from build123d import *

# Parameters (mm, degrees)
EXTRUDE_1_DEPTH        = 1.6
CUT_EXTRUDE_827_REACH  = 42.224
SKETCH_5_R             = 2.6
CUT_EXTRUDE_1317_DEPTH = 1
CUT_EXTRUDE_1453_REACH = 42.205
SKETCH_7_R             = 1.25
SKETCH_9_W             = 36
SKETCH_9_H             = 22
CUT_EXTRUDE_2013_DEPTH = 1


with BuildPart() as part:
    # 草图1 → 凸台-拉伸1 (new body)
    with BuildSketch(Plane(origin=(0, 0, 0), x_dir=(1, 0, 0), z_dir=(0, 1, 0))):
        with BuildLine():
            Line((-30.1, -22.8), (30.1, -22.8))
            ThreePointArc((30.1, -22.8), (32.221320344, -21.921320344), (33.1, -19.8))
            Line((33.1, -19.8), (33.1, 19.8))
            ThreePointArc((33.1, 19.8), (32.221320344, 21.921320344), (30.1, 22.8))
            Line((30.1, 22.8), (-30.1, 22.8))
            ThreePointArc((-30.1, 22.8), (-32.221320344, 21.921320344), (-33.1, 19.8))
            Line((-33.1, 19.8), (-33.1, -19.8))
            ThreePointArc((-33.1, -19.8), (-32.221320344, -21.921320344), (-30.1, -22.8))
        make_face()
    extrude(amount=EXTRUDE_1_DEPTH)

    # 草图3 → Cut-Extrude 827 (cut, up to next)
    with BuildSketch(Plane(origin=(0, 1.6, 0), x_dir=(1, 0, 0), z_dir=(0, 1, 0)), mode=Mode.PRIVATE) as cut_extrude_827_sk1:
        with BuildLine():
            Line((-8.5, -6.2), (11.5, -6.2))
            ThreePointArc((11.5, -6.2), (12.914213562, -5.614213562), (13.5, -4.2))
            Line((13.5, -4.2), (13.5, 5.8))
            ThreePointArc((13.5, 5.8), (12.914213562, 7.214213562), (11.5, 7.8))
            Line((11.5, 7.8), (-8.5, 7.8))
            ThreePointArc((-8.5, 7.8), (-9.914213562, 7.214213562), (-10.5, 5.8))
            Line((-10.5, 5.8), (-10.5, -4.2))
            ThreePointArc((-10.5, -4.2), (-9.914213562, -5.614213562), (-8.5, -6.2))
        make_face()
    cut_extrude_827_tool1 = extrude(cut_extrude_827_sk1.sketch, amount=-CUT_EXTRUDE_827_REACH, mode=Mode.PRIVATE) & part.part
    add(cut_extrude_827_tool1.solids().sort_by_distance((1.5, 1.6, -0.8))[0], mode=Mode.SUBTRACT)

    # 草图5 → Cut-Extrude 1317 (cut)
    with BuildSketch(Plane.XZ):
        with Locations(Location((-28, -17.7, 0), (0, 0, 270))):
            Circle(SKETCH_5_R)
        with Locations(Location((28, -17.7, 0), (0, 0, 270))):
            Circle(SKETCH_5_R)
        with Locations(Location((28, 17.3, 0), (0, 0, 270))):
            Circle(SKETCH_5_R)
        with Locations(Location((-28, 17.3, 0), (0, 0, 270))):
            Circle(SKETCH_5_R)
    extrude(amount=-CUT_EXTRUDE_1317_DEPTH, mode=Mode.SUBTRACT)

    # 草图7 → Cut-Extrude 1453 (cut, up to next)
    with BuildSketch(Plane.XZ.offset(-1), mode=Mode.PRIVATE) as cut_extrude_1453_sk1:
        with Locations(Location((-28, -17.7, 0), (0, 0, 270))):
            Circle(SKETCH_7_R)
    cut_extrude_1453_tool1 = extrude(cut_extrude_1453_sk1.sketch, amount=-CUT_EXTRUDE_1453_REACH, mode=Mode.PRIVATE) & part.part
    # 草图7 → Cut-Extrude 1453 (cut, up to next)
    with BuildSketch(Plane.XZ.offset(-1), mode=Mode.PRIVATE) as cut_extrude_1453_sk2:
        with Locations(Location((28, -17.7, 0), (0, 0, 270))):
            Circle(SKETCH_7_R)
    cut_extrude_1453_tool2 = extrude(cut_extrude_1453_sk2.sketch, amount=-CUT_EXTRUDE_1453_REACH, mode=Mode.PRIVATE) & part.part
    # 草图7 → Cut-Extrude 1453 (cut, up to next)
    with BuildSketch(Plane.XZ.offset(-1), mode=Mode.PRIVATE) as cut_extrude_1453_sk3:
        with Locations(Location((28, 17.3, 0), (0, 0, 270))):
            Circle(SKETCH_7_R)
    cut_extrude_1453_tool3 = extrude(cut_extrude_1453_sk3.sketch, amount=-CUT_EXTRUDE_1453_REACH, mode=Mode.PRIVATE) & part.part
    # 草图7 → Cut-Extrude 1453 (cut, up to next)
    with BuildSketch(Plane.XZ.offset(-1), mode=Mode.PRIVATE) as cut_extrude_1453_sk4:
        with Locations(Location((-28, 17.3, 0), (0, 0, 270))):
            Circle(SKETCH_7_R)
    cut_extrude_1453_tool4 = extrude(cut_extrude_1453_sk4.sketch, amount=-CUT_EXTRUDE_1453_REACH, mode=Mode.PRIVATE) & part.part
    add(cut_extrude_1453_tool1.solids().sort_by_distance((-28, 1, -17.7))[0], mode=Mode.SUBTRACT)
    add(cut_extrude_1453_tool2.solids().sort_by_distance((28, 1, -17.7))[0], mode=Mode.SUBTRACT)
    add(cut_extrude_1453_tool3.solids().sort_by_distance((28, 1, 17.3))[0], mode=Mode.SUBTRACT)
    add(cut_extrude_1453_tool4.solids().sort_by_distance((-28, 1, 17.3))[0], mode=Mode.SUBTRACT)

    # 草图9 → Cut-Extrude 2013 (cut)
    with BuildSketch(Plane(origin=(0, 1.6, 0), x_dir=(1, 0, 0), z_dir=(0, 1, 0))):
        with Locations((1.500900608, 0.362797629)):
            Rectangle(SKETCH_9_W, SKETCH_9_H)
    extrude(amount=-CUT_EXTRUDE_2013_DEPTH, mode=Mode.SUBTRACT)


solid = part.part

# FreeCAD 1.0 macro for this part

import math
import FreeCAD as App
import Part
import Sketcher
from FreeCAD import Vector
Q = App.Units.Quantity


def add_polygon(sketch, points):
    """Adds a closed chain of lines whose ends are joined by coincident constraints."""
    first, n = sketch.GeometryCount, len(points)
    for a, b in zip(points, points[1:] + points[:1]):
        sketch.addGeometry(Part.LineSegment(App.Vector(*a, 0), App.Vector(*b, 0)), False)
    for i in range(n):
        sketch.addConstraint(Sketcher.Constraint("Coincident", first + i, 2, first + (i + 1) % n, 1))

doc = App.newDocument("Part")
body = doc.addObject("PartDesign::Body", "Body")

sketch1 = doc.addObject("Sketcher::SketchObject", "Sketch")
body.addObject(sketch1)
sketch1.AttachmentSupport = (doc.XZ_Plane, [""])
sketch1.MapMode = "FlatFace"
sketch1.addGeometry([
    Part.LineSegment(Vector(-30.1, 22.8, 0), Vector(30.1, 22.8, 0)),
    Part.ArcOfCircle(Part.Circle(Vector(30.1, 19.8, 0), Vector(0, 0, 1), 3), math.radians(0), math.radians(90)),
    Part.LineSegment(Vector(33.1, 19.8, 0), Vector(33.1, -19.8, 0)),
    Part.ArcOfCircle(Part.Circle(Vector(30.1, -19.8, 0), Vector(0, 0, 1), 3), math.radians(-90), math.radians(0)),
    Part.LineSegment(Vector(30.1, -22.8, 0), Vector(-30.1, -22.8, 0)),
    Part.ArcOfCircle(Part.Circle(Vector(-30.1, -19.8, 0), Vector(0, 0, 1), 3), math.radians(180), math.radians(270)),
    Part.LineSegment(Vector(-33.1, -19.8, 0), Vector(-33.1, 19.8, 0)),
    Part.ArcOfCircle(Part.Circle(Vector(-30.1, 19.8, 0), Vector(0, 0, 1), 3), math.radians(90), math.radians(180)),
], False)
sketch1.addConstraint([
    Sketcher.Constraint("Tangent", 0, 2, 1, 2),
    Sketcher.Constraint("Tangent", 1, 1, 2, 1),
    Sketcher.Constraint("Tangent", 2, 2, 3, 2),
    Sketcher.Constraint("Tangent", 3, 1, 4, 1),
    Sketcher.Constraint("Tangent", 4, 2, 5, 2),
    Sketcher.Constraint("Tangent", 5, 1, 6, 1),
    Sketcher.Constraint("Tangent", 6, 2, 7, 2),
    Sketcher.Constraint("Tangent", 7, 1, 0, 1),
    Sketcher.Constraint("Horizontal", 0),
    Sketcher.Constraint("Vertical", 2),
    Sketcher.Constraint("Horizontal", 4),
    Sketcher.Constraint("Vertical", 6),
    Sketcher.Constraint("Equal", 1, 3),
    Sketcher.Constraint("Equal", 3, 5),
    Sketcher.Constraint("Equal", 5, 7),
    Sketcher.Constraint("Symmetric", 1, 3, 5, 3, -1, 1),
    Sketcher.Constraint("Radius", 1, Q("3 mm")),
    Sketcher.Constraint("DistanceX", 0, 1, 0, 2, Q("60.2 mm")),
    Sketcher.Constraint("DistanceY", 2, 2, 2, 1, Q("39.6 mm")),
])
pad1 = doc.addObject("PartDesign::Pad", "Pad")
body.addObject(pad1)
pad1.Profile = sketch1
pad1.Length = 1.6
pad1.Reversed = True

sketch2 = doc.addObject("Sketcher::SketchObject", "Sketch001")
body.addObject(sketch2)
sketch2.AttachmentSupport = (doc.XZ_Plane, [""])
sketch2.MapMode = "FlatFace"
sketch2.AttachmentOffset = App.Placement(Vector(0, 0, -1.6), App.Rotation())
sketch2.addGeometry([
    Part.LineSegment(Vector(-8.5, 6.2, 0), Vector(11.5, 6.2, 0)),
    Part.ArcOfCircle(Part.Circle(Vector(11.5, 4.2, 0), Vector(0, 0, 1), 2), math.radians(0), math.radians(90)),
    Part.LineSegment(Vector(13.5, 4.2, 0), Vector(13.5, -5.8, 0)),
    Part.ArcOfCircle(Part.Circle(Vector(11.5, -5.8, 0), Vector(0, 0, 1), 2), math.radians(-90), math.radians(0)),
    Part.LineSegment(Vector(11.5, -7.8, 0), Vector(-8.5, -7.8, 0)),
    Part.ArcOfCircle(Part.Circle(Vector(-8.5, -5.8, 0), Vector(0, 0, 1), 2), math.radians(-180), math.radians(-90)),
    Part.LineSegment(Vector(-10.5, -5.8, 0), Vector(-10.5, 4.2, 0)),
    Part.ArcOfCircle(Part.Circle(Vector(-8.5, 4.2, 0), Vector(0, 0, 1), 2), math.radians(90), math.radians(180)),
], False)
sketch2.addConstraint([
    Sketcher.Constraint("Tangent", 0, 2, 1, 2),
    Sketcher.Constraint("Tangent", 1, 1, 2, 1),
    Sketcher.Constraint("Tangent", 2, 2, 3, 2),
    Sketcher.Constraint("Tangent", 3, 1, 4, 1),
    Sketcher.Constraint("Tangent", 4, 2, 5, 2),
    Sketcher.Constraint("Tangent", 5, 1, 6, 1),
    Sketcher.Constraint("Tangent", 6, 2, 7, 2),
    Sketcher.Constraint("Tangent", 7, 1, 0, 1),
    Sketcher.Constraint("Horizontal", 0),
    Sketcher.Constraint("Vertical", 2),
    Sketcher.Constraint("Horizontal", 4),
    Sketcher.Constraint("Vertical", 6),
    Sketcher.Constraint("Equal", 1, 3),
    Sketcher.Constraint("Equal", 3, 5),
    Sketcher.Constraint("Equal", 5, 7),
    Sketcher.Constraint("Radius", 1, Q("2 mm")),
    Sketcher.Constraint("DistanceX", 0, 1, 0, 2, Q("20 mm")),
    Sketcher.Constraint("DistanceY", 2, 2, 2, 1, Q("10 mm")),
    Sketcher.Constraint("DistanceX", -1, 1, 1, 3, Q("11.5 mm")),
    Sketcher.Constraint("DistanceY", -1, 1, 1, 3, Q("4.2 mm")),
])
pocket1 = doc.addObject("PartDesign::Pocket", "Pocket")
body.addObject(pocket1)
pocket1.Profile = sketch2
pocket1.Type = "UpToFirst"
pocket1.Reversed = True

sketch3 = doc.addObject("Sketcher::SketchObject", "Sketch002")
body.addObject(sketch3)
sketch3.AttachmentSupport = (doc.XZ_Plane, [""])
sketch3.MapMode = "FlatFace"
sketch3.addGeometry([
    Part.Circle(Vector(-28, -17.7, 0), Vector(0, 0, 1), 2.6),
    Part.Circle(Vector(28, -17.7, 0), Vector(0, 0, 1), 2.6),
    Part.Circle(Vector(28, 17.3, 0), Vector(0, 0, 1), 2.6),
    Part.Circle(Vector(-28, 17.3, 0), Vector(0, 0, 1), 2.6),
], False)
sketch3.addConstraint([
    Sketcher.Constraint("Equal", 0, 1),
    Sketcher.Constraint("Equal", 1, 2),
    Sketcher.Constraint("Equal", 2, 3),
    Sketcher.Constraint("Symmetric", 0, 3, 1, 3, -2),
    Sketcher.Constraint("Symmetric", 2, 3, 3, 3, -2),
    Sketcher.Constraint("Vertical", 1, 3, 2, 3),
    Sketcher.Constraint("Diameter", 0, Q("5.2 mm")),
    Sketcher.Constraint("DistanceX", 0, 3, -1, 1, Q("28 mm")),
    Sketcher.Constraint("DistanceY", 1, 3, 2, 3, Q("35 mm")),
    Sketcher.Constraint("DistanceY", 0, 3, -1, 1, Q("17.7 mm")),
])
pocket2 = doc.addObject("PartDesign::Pocket", "Pocket001")
body.addObject(pocket2)
pocket2.Profile = sketch3
pocket2.Length = 1

sketch4 = doc.addObject("Sketcher::SketchObject", "Sketch003")
body.addObject(sketch4)
sketch4.AttachmentSupport = (doc.XZ_Plane, [""])
sketch4.MapMode = "FlatFace"
sketch4.AttachmentOffset = App.Placement(Vector(0, 0, -1), App.Rotation())
sketch4.addGeometry(Part.Circle(Vector(-28, -17.7, 0), Vector(0, 0, 1), 1.2), False)
sketch4.addConstraint([
    Sketcher.Constraint("Diameter", 0, Q("2.5 mm")),
    Sketcher.Constraint("DistanceX", 0, 3, -1, 1, Q("28 mm")),
    Sketcher.Constraint("DistanceY", 0, 3, -1, 1, Q("17.7 mm")),
])
pocket3 = doc.addObject("PartDesign::Pocket", "Pocket002")
body.addObject(pocket3)
pocket3.Profile = sketch4
pocket3.Type = "UpToFirst"

sketch5 = doc.addObject("Sketcher::SketchObject", "Sketch004")
body.addObject(sketch5)
sketch5.AttachmentSupport = (doc.XZ_Plane, [""])
sketch5.MapMode = "FlatFace"
sketch5.AttachmentOffset = App.Placement(Vector(0, 0, -1), App.Rotation())
sketch5.addGeometry(Part.Circle(Vector(28, -17.7, 0), Vector(0, 0, 1), 1.2), False)
sketch5.addConstraint([
    Sketcher.Constraint("Diameter", 0, Q("2.5 mm")),
    Sketcher.Constraint("DistanceX", -1, 1, 0, 3, Q("28 mm")),
    Sketcher.Constraint("DistanceY", 0, 3, -1, 1, Q("17.7 mm")),
])
pocket4 = doc.addObject("PartDesign::Pocket", "Pocket003")
body.addObject(pocket4)
pocket4.Profile = sketch5
pocket4.Type = "UpToFirst"

sketch6 = doc.addObject("Sketcher::SketchObject", "Sketch005")
body.addObject(sketch6)
sketch6.AttachmentSupport = (doc.XZ_Plane, [""])
sketch6.MapMode = "FlatFace"
sketch6.AttachmentOffset = App.Placement(Vector(0, 0, -1), App.Rotation())
sketch6.addGeometry(Part.Circle(Vector(28, 17.3, 0), Vector(0, 0, 1), 1.2), False)
sketch6.addConstraint([
    Sketcher.Constraint("Diameter", 0, Q("2.5 mm")),
    Sketcher.Constraint("DistanceX", -1, 1, 0, 3, Q("28 mm")),
    Sketcher.Constraint("DistanceY", -1, 1, 0, 3, Q("17.3 mm")),
])
pocket5 = doc.addObject("PartDesign::Pocket", "Pocket004")
body.addObject(pocket5)
pocket5.Profile = sketch6
pocket5.Type = "UpToFirst"

sketch7 = doc.addObject("Sketcher::SketchObject", "Sketch006")
body.addObject(sketch7)
sketch7.AttachmentSupport = (doc.XZ_Plane, [""])
sketch7.MapMode = "FlatFace"
sketch7.AttachmentOffset = App.Placement(Vector(0, 0, -1), App.Rotation())
sketch7.addGeometry(Part.Circle(Vector(-28, 17.3, 0), Vector(0, 0, 1), 1.2), False)
sketch7.addConstraint([
    Sketcher.Constraint("Diameter", 0, Q("2.5 mm")),
    Sketcher.Constraint("DistanceX", 0, 3, -1, 1, Q("28 mm")),
    Sketcher.Constraint("DistanceY", -1, 1, 0, 3, Q("17.3 mm")),
])
pocket6 = doc.addObject("PartDesign::Pocket", "Pocket005")
body.addObject(pocket6)
pocket6.Profile = sketch7
pocket6.Type = "UpToFirst"

sketch8 = doc.addObject("Sketcher::SketchObject", "Sketch007")
body.addObject(sketch8)
sketch8.AttachmentSupport = (doc.XZ_Plane, [""])
sketch8.MapMode = "FlatFace"
sketch8.AttachmentOffset = App.Placement(Vector(0, 0, -1.6), App.Rotation())
add_polygon(sketch8, [(-16, -11), (-16, 11), (20, 11), (20, -11)])
sketch8.addConstraint([
    Sketcher.Constraint("Vertical", 0),
    Sketcher.Constraint("Horizontal", 1),
    Sketcher.Constraint("Vertical", 2),
    Sketcher.Constraint("Horizontal", 3),
    Sketcher.Constraint("DistanceX", 1, 1, 1, 2, Q("36 mm")),
    Sketcher.Constraint("DistanceY", 0, 1, 0, 2, Q("22 mm")),
    Sketcher.Constraint("DistanceX", 0, 2, -1, 1, Q("16.499099 mm")),
    Sketcher.Constraint("DistanceY", -1, 1, 0, 2, Q("10.637202 mm")),
])
pocket7 = doc.addObject("PartDesign::Pocket", "Pocket006")
body.addObject(pocket7)
pocket7.Profile = sketch8
pocket7.Length = 1
pocket7.Reversed = True

doc.recompute()
